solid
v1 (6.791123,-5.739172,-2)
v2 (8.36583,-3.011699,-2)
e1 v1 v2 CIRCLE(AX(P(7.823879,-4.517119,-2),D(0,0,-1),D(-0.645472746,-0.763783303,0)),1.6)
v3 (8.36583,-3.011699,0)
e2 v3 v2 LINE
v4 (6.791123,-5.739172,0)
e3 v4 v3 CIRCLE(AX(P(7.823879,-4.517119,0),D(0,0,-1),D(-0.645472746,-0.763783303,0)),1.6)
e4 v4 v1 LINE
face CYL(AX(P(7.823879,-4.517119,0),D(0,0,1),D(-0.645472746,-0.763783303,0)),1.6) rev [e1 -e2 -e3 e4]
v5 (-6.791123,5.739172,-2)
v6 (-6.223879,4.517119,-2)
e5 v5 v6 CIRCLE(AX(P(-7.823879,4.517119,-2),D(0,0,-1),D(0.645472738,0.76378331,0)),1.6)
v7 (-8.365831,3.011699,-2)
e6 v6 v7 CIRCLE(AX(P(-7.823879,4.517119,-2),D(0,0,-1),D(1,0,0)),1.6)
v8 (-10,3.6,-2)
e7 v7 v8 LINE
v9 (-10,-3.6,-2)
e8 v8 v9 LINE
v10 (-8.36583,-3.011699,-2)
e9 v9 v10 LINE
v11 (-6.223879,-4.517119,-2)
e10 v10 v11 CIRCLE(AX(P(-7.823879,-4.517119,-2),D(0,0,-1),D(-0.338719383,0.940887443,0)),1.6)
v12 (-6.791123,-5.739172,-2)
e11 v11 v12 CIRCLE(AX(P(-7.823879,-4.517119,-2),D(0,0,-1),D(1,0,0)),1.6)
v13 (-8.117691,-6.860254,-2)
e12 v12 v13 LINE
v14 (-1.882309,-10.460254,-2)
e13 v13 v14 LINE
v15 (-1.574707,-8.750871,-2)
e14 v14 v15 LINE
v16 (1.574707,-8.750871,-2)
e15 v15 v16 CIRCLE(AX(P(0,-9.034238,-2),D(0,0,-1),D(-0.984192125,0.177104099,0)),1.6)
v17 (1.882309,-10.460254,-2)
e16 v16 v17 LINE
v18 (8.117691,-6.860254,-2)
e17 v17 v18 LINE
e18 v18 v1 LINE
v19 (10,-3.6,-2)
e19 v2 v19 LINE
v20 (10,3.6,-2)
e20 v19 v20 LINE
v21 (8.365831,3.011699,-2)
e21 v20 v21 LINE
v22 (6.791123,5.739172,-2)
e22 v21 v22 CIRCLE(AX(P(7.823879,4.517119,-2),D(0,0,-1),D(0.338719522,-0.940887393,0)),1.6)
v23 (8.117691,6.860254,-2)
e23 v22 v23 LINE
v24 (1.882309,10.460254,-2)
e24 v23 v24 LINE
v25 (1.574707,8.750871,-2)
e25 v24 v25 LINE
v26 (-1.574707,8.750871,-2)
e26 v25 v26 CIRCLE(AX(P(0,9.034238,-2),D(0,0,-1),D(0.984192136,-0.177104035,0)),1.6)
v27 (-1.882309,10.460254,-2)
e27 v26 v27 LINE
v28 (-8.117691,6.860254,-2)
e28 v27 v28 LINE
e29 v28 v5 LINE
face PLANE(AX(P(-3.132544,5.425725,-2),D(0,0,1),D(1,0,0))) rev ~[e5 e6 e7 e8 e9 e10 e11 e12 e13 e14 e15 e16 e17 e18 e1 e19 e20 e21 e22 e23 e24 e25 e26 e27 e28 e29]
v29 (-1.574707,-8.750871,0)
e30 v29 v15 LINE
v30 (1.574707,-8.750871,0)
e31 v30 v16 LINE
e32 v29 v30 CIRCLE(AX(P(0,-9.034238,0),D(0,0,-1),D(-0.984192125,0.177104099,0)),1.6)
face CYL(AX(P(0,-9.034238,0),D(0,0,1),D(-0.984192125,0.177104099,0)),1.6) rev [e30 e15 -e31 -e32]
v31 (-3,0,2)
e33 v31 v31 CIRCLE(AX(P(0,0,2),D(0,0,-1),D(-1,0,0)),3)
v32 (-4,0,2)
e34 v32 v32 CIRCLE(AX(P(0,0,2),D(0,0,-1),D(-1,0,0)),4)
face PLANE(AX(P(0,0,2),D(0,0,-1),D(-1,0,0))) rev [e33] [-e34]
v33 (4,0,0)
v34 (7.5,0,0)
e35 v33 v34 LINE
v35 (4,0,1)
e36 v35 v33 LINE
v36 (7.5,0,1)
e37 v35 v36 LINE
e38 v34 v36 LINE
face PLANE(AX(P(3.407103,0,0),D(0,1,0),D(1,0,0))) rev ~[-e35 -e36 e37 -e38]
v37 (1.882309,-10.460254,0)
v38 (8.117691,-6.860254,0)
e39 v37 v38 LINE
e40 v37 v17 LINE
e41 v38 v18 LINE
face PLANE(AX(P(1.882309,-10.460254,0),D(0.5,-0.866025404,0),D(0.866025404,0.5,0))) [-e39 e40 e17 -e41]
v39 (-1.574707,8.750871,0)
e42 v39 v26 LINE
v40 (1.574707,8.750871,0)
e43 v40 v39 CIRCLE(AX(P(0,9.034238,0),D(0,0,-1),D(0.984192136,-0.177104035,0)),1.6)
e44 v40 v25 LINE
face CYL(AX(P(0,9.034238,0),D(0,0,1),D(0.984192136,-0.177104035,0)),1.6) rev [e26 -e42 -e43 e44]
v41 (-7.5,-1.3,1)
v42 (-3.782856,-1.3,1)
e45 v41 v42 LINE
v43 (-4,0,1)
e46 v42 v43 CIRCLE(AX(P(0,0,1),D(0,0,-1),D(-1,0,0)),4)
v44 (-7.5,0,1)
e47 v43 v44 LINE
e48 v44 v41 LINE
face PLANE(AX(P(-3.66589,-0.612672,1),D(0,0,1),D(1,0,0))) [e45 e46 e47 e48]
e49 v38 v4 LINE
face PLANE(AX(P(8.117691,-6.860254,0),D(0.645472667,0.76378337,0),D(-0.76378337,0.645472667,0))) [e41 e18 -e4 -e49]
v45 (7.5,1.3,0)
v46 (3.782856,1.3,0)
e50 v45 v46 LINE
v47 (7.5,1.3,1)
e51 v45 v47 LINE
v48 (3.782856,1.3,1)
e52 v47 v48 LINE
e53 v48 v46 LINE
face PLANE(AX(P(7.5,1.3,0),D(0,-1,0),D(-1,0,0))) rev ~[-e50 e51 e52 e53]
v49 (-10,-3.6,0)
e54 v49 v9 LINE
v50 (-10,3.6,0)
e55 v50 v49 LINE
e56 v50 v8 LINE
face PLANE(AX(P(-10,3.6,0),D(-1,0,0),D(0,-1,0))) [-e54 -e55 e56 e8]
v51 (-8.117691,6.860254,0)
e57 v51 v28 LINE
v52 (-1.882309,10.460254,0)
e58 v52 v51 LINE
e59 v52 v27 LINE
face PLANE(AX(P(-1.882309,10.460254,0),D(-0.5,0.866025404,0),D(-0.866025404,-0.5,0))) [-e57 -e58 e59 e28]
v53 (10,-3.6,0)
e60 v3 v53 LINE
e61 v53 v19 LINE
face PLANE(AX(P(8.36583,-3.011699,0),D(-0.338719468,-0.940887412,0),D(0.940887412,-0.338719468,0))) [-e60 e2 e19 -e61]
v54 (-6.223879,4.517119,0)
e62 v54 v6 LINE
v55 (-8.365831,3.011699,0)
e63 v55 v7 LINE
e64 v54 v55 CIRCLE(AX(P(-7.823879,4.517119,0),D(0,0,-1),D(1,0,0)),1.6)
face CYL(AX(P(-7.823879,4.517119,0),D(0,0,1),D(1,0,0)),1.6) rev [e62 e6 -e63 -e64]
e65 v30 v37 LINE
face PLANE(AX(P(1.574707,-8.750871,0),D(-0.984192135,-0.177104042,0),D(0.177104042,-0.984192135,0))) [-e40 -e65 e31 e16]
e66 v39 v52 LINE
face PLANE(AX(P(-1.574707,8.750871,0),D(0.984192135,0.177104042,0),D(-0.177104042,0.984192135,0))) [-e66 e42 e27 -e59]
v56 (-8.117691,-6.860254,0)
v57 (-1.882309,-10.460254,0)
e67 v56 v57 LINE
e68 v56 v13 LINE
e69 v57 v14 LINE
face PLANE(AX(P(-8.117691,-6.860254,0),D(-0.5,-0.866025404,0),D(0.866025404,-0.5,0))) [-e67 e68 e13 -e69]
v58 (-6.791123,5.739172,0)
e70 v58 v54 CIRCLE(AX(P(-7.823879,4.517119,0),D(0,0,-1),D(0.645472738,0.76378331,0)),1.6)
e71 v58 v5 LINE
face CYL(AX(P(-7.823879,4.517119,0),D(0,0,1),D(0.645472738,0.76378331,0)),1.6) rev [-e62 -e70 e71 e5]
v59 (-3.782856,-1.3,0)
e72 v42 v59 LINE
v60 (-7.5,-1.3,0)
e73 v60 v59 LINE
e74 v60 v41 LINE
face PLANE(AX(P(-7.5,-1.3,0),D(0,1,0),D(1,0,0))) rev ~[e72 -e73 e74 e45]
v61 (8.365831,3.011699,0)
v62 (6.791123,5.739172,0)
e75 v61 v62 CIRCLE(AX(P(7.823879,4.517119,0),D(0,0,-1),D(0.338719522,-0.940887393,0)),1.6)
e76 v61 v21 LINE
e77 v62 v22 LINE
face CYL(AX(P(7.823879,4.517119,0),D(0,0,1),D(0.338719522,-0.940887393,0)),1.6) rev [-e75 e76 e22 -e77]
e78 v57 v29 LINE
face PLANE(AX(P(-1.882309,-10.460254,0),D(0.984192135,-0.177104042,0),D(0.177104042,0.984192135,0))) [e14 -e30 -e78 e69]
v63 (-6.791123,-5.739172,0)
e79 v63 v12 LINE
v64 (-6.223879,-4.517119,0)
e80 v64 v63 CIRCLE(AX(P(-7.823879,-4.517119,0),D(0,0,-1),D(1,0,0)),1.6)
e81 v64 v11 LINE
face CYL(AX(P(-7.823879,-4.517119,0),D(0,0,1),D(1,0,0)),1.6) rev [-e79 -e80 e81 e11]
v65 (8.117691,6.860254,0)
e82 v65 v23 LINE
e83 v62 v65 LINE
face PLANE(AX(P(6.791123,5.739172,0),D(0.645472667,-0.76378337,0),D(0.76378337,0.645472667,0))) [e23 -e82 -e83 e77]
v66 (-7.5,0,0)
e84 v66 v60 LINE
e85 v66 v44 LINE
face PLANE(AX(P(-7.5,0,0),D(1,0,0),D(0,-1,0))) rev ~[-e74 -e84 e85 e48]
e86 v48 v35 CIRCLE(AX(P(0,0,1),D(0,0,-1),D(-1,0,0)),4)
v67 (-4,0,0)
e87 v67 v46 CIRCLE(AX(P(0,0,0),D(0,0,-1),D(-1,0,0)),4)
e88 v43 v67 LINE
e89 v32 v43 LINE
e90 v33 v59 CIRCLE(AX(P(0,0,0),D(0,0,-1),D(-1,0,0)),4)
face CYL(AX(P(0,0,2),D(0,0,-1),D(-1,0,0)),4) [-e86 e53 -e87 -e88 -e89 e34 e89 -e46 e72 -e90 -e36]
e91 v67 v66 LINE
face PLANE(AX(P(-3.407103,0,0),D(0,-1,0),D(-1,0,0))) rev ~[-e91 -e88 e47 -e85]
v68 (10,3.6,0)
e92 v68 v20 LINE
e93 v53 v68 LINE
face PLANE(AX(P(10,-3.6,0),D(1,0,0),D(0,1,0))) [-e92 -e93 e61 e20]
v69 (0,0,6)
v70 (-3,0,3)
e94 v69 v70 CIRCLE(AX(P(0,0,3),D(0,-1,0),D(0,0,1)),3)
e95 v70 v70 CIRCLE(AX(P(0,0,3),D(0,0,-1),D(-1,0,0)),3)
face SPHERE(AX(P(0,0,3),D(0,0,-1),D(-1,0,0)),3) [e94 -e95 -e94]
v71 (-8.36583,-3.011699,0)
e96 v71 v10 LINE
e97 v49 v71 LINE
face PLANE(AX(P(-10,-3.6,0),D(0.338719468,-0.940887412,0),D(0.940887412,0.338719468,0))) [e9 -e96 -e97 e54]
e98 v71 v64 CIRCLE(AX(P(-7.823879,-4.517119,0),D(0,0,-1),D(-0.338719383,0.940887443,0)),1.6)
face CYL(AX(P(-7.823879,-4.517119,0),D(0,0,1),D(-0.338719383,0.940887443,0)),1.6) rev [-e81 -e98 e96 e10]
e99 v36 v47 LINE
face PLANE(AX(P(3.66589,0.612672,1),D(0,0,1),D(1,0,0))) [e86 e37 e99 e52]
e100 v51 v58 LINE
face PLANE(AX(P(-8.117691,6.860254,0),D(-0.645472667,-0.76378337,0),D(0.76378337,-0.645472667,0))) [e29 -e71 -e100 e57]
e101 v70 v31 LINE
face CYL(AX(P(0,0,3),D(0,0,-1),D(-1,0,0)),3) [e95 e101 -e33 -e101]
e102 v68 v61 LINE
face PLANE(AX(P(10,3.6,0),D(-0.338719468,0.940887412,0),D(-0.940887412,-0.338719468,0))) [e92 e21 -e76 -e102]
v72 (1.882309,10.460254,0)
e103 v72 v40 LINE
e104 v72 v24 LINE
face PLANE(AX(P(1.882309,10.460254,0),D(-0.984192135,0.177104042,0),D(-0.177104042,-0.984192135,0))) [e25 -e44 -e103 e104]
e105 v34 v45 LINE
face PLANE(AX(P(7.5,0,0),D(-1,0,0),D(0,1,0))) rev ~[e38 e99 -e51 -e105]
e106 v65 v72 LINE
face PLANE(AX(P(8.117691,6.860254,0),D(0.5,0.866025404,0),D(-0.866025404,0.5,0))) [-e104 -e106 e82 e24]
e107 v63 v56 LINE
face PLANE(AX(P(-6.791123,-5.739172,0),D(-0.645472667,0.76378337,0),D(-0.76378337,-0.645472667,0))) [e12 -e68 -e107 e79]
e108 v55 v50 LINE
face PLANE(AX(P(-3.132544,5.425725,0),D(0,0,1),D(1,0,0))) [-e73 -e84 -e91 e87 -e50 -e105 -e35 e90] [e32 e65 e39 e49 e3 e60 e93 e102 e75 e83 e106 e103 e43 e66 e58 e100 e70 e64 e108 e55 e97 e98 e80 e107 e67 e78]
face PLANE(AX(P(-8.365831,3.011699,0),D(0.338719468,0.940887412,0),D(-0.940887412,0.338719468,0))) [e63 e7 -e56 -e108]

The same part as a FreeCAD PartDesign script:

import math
import FreeCAD as App
import Part
import Sketcher
from FreeCAD import Vector
Q = App.Units.Quantity


def add_polygon(sketch, points):
    """Adds a closed chain of lines whose ends are joined by coincident constraints."""
    first, n = sketch.GeometryCount, len(points)
    for a, b in zip(points, points[1:] + points[:1]):
        sketch.addGeometry(Part.LineSegment(App.Vector(*a, 0), App.Vector(*b, 0)), False)
    for i in range(n):
        sketch.addConstraint(Sketcher.Constraint("Coincident", first + i, 2, first + (i + 1) % n, 1))

doc = App.newDocument("Part")
params = doc.addObject("Spreadsheet::Sheet", "Params")
for row, (alias, value) in enumerate([
    ("sketch1_radius", "1.6 mm"),
    ("sketch1_height", "7.2 mm"),
    ("sketch1_length", "7.2 mm"),
    ("pad1_length", "2 mm"),
    ("sketch2_radius", "3 mm"),
    ("sketch2_width", "4 mm"),
    ("sketch2_height", "6 mm"),
    ("revolution_angle", "360 deg"),
    ("sketch3_height", "1.3 mm"),
    ("pad2_length", "1 mm"),
], start=1):
    params.set(f"A{row}", alias)
    params.set(f"B{row}", "=" + value)
    params.setAlias(f"B{row}", alias)

body = doc.addObject("PartDesign::Body", "Body")

# Sketch on XY plane
sketch1 = body.newObject("Sketcher::SketchObject", "Sketch")
sketch1.AttachmentSupport = (doc.getObject("XY_Plane"), [""])
sketch1.MapMode = "FlatFace"
sketch1.addGeometry(Part.LineSegment(Vector(-8.4, 3, 0), Vector(-10, 3.6, 0)), False)
sketch1.addGeometry(Part.LineSegment(Vector(-10, 3.6, 0), Vector(-10, -3.6, 0)), False)
sketch1.addGeometry(Part.LineSegment(Vector(-10, -3.6, 0), Vector(-8.4, -3, 0)), False)
sketch1.addGeometry(Part.ArcOfCircle(Part.Circle(Vector(-7.8, -4.5, 0), Vector(0, 0, 1), 1.6), math.radians(0), math.radians(110)), False)
sketch1.addGeometry(Part.ArcOfCircle(Part.Circle(Vector(-7.8, -4.5, 0), Vector(0, 0, 1), 1.6), math.radians(-50), math.radians(0)), False)
sketch1.addGeometry(Part.LineSegment(Vector(-6.8, -5.7, 0), Vector(-8.1, -6.9, 0)), False)
sketch1.addGeometry(Part.LineSegment(Vector(-8.1, -6.9, 0), Vector(-1.9, -10.5, 0)), False)
sketch1.addGeometry(Part.LineSegment(Vector(-1.9, -10.5, 0), Vector(-1.6, -8.8, 0)), False)
sketch1.addGeometry(Part.ArcOfCircle(Part.Circle(Vector(0, -9, 0), Vector(0, 0, 1), 1.6), math.radians(10), math.radians(170)), False)
sketch1.addGeometry(Part.LineSegment(Vector(1.6, -8.8, 0), Vector(1.9, -10.5, 0)), False)
sketch1.addGeometry(Part.LineSegment(Vector(1.9, -10.5, 0), Vector(8.1, -6.9, 0)), False)
sketch1.addGeometry(Part.LineSegment(Vector(8.1, -6.9, 0), Vector(6.8, -5.7, 0)), False)
sketch1.addGeometry(Part.ArcOfCircle(Part.Circle(Vector(7.8, -4.5, 0), Vector(0, 0, 1), 1.6), math.radians(70), math.radians(230)), False)
sketch1.addGeometry(Part.LineSegment(Vector(8.4, -3, 0), Vector(10, -3.6, 0)), False)
sketch1.addGeometry(Part.LineSegment(Vector(10, -3.6, 0), Vector(10, 3.6, 0)), False)
sketch1.addGeometry(Part.LineSegment(Vector(10, 3.6, 0), Vector(8.4, 3, 0)), False)
sketch1.addGeometry(Part.ArcOfCircle(Part.Circle(Vector(7.8, 4.5, 0), Vector(0, 0, 1), 1.6), math.radians(130), math.radians(290)), False)
sketch1.addGeometry(Part.LineSegment(Vector(6.8, 5.7, 0), Vector(8.1, 6.9, 0)), False)
sketch1.addGeometry(Part.LineSegment(Vector(8.1, 6.9, 0), Vector(1.9, 10.5, 0)), False)
sketch1.addGeometry(Part.LineSegment(Vector(1.9, 10.5, 0), Vector(1.6, 8.8, 0)), False)
sketch1.addGeometry(Part.ArcOfCircle(Part.Circle(Vector(0, 9, 0), Vector(0, 0, 1), 1.6), math.radians(-170), math.radians(-10)), False)
sketch1.addGeometry(Part.LineSegment(Vector(-1.6, 8.8, 0), Vector(-1.9, 10.5, 0)), False)
sketch1.addGeometry(Part.LineSegment(Vector(-1.9, 10.5, 0), Vector(-8.1, 6.9, 0)), False)
sketch1.addGeometry(Part.LineSegment(Vector(-8.1, 6.9, 0), Vector(-6.8, 5.7, 0)), False)
sketch1.addGeometry(Part.ArcOfCircle(Part.Circle(Vector(-7.8, 4.5, 0), Vector(0, 0, 1), 1.6), math.radians(0), math.radians(50)), False)
sketch1.addGeometry(Part.ArcOfCircle(Part.Circle(Vector(-7.8, 4.5, 0), Vector(0, 0, 1), 1.6), math.radians(-110), math.radians(0)), False)
sketch1.addConstraint(Sketcher.Constraint("Coincident", 0, 2, 1, 1))
sketch1.addConstraint(Sketcher.Constraint("Coincident", 1, 2, 2, 1))
sketch1.addConstraint(Sketcher.Constraint("Tangent", 2, 2, 3, 2))
sketch1.addConstraint(Sketcher.Constraint("Tangent", 3, 1, 4, 2))
sketch1.addConstraint(Sketcher.Constraint("Tangent", 4, 1, 5, 1))
sketch1.addConstraint(Sketcher.Constraint("Coincident", 5, 2, 6, 1))
sketch1.addConstraint(Sketcher.Constraint("Coincident", 6, 2, 7, 1))
sketch1.addConstraint(Sketcher.Constraint("Tangent", 7, 2, 8, 2))
sketch1.addConstraint(Sketcher.Constraint("Tangent", 8, 1, 9, 1))
sketch1.addConstraint(Sketcher.Constraint("Coincident", 9, 2, 10, 1))
sketch1.addConstraint(Sketcher.Constraint("Coincident", 10, 2, 11, 1))
sketch1.addConstraint(Sketcher.Constraint("Tangent", 11, 2, 12, 2))
sketch1.addConstraint(Sketcher.Constraint("Tangent", 12, 1, 13, 1))
sketch1.addConstraint(Sketcher.Constraint("Coincident", 13, 2, 14, 1))
sketch1.addConstraint(Sketcher.Constraint("Coincident", 14, 2, 15, 1))
sketch1.addConstraint(Sketcher.Constraint("Tangent", 15, 2, 16, 2))
sketch1.addConstraint(Sketcher.Constraint("Tangent", 16, 1, 17, 1))
sketch1.addConstraint(Sketcher.Constraint("Coincident", 17, 2, 18, 1))
sketch1.addConstraint(Sketcher.Constraint("Coincident", 18, 2, 19, 1))
sketch1.addConstraint(Sketcher.Constraint("Tangent", 19, 2, 20, 2))
sketch1.addConstraint(Sketcher.Constraint("Tangent", 20, 1, 21, 1))
sketch1.addConstraint(Sketcher.Constraint("Coincident", 21, 2, 22, 1))
sketch1.addConstraint(Sketcher.Constraint("Coincident", 22, 2, 23, 1))
sketch1.addConstraint(Sketcher.Constraint("Tangent", 23, 2, 24, 2))
sketch1.addConstraint(Sketcher.Constraint("Tangent", 24, 1, 25, 2))
sketch1.addConstraint(Sketcher.Constraint("Tangent", 25, 1, 0, 1))
sketch1.addConstraint(Sketcher.Constraint("Vertical", 1))
sketch1.addConstraint(Sketcher.Constraint("Vertical", 14))
sketch1.addConstraint(Sketcher.Constraint("Equal", 3, 4))
sketch1.addConstraint(Sketcher.Constraint("Equal", 4, 8))
sketch1.addConstraint(Sketcher.Constraint("Equal", 8, 12))
sketch1.addConstraint(Sketcher.Constraint("Equal", 12, 16))
sketch1.addConstraint(Sketcher.Constraint("Equal", 16, 20))
sketch1.addConstraint(Sketcher.Constraint("Equal", 20, 24))
sketch1.addConstraint(Sketcher.Constraint("Equal", 24, 25))
sketch1.addConstraint(Sketcher.Constraint("Symmetric", 3, 3, 16, 3, -1, 1))
sketch1.addConstraint(Sketcher.Constraint("Symmetric", 8, 3, 20, 3, -1, 1))
sketch1.addConstraint(Sketcher.Constraint("Symmetric", 12, 3, 24, 3, -1, 1))
sketch1.addConstraint(Sketcher.Constraint("Symmetric", 0, 2, 13, 2, -1, 1))
sketch1.addConstraint(Sketcher.Constraint("Symmetric", 5, 2, 17, 2, -1, 1))
sketch1.addConstraint(Sketcher.Constraint("Symmetric", 6, 2, 18, 2, -1, 1))
sketch1.addConstraint(Sketcher.Constraint("Symmetric", 9, 2, 21, 2, -1, 1))
sketch1.addConstraint(Sketcher.Constraint("Symmetric", 10, 2, 22, 2, -1, 1))
sketch1.addConstraint(Sketcher.Constraint("Symmetric", 3, 3, 12, 3, -2))
sketch1.addConstraint(Sketcher.Constraint("Symmetric", 7, 2, 8, 1, -2))
sketch1.addConstraint(Sketcher.Constraint("Symmetric", 5, 2, 10, 2, -2))
sketch1.addConstraint(Sketcher.Constraint("Parallel", 2, 15))
sketch1.addConstraint(Sketcher.Constraint("Horizontal", 12, 3, 3, 1))
sketch1.addConstraint(Sketcher.Constraint("Horizontal", 6, 2, 9, 2))
sketch1.addConstraint(Sketcher.Constraint("Horizontal", 2, 2, 12, 1))
sketch1.addConstraint(Sketcher.Constraint("Horizontal", 25, 3, 24, 1))
sketch1.addConstraint(Sketcher.Constraint("Equal", 2, 5))
sketch1.addConstraint(Sketcher.Constraint("Equal", 5, 7))
sketch1.addConstraint(Sketcher.Constraint("Radius", 3, Q("1.6 mm")))
sketch1.addConstraint(Sketcher.Constraint("Angle", 6, Q("-30 deg")))
sketch1.addConstraint(Sketcher.Constraint("DistanceY", 1, 2, 1, 1, Q("7.2 mm")))
sketch1.addConstraint(Sketcher.Constraint("DistanceX", 0, 2, -1, 1, Q("10 mm")))
sketch1.addConstraint(Sketcher.Constraint("Distance", 6, Q("7.2 mm")))
sketch1.addConstraint(Sketcher.Constraint("DistanceY", 2, 2, -1, 1, Q("3.011699 mm")))
sketch1.addConstraint(Sketcher.Constraint("DistanceX", 6, 2, 7, 2, Q("0.307601 mm")))
sketch1.addConstraint(Sketcher.Constraint("DistanceY", 7, 2, 4, 1, Q("3.011699 mm")))
sketch1.setExpression("Constraints[53]", "Params.sketch1_radius")
sketch1.setExpression("Constraints[55]", "Params.sketch1_height")
sketch1.setExpression("Constraints[57]", "Params.sketch1_length")
pad1 = body.newObject("PartDesign::Pad", "Pad")
pad1.Profile = sketch1
pad1.setExpression("Length", "Params.pad1_length")
pad1.Reversed = True

# Sketch on XZ plane
sketch2 = body.newObject("Sketcher::SketchObject", "Sketch001")
sketch2.AttachmentSupport = (doc.getObject("XZ_Plane"), [""])
sketch2.MapMode = "FlatFace"
sketch2.addGeometry(Part.LineSegment(Vector(-4, 0, 0), Vector(0, 0, 0)), False)
sketch2.addGeometry(Part.LineSegment(Vector(0, 0, 0), Vector(0, 6, 0)), False)
sketch2.addGeometry(Part.ArcOfCircle(Part.Circle(Vector(0, 3, 0), Vector(0, 0, 1), 3), math.radians(90), math.radians(180)), False)
sketch2.addGeometry(Part.LineSegment(Vector(-3, 3, 0), Vector(-3, 2, 0)), False)
sketch2.addGeometry(Part.LineSegment(Vector(-3, 2, 0), Vector(-4, 2, 0)), False)
sketch2.addGeometry(Part.LineSegment(Vector(-4, 2, 0), Vector(-4, 0, 0)), False)
sketch2.addConstraint(Sketcher.Constraint("Coincident", 0, 2, 1, 1))
sketch2.addConstraint(Sketcher.Constraint("Coincident", 1, 2, 2, 1))
sketch2.addConstraint(Sketcher.Constraint("Tangent", 2, 2, 3, 1))
sketch2.addConstraint(Sketcher.Constraint("Coincident", 3, 2, 4, 1))
sketch2.addConstraint(Sketcher.Constraint("Coincident", 4, 2, 5, 1))
sketch2.addConstraint(Sketcher.Constraint("Coincident", 5, 2, 0, 1))
sketch2.addConstraint(Sketcher.Constraint("Horizontal", 0))
sketch2.addConstraint(Sketcher.Constraint("Vertical", 1))
sketch2.addConstraint(Sketcher.Constraint("Vertical", 3))
sketch2.addConstraint(Sketcher.Constraint("Horizontal", 4))
sketch2.addConstraint(Sketcher.Constraint("Vertical", 5))
sketch2.addConstraint(Sketcher.Constraint("Coincident", 0, 2, -1, 1))
sketch2.addConstraint(Sketcher.Constraint("PointOnObject", 2, 3, -2))
sketch2.addConstraint(Sketcher.Constraint("Equal", 4, 3))
sketch2.addConstraint(Sketcher.Constraint("Radius", 2, Q("3 mm")))
sketch2.addConstraint(Sketcher.Constraint("DistanceX", 0, 1, 0, 2, Q("4 mm")))
sketch2.addConstraint(Sketcher.Constraint("DistanceY", 1, 1, 1, 2, Q("6 mm")))
sketch2.setExpression("Constraints[14]", "Params.sketch2_radius")
sketch2.setExpression("Constraints[15]", "Params.sketch2_width")
sketch2.setExpression("Constraints[16]", "Params.sketch2_height")
revolution = body.newObject("PartDesign::Revolution", "Revolution")
revolution.Profile = sketch2
revolution.ReferenceAxis = (sketch2, ["V_Axis"])
revolution.setExpression("Angle", "Params.revolution_angle")

# Sketch on XY plane
sketch3 = body.newObject("Sketcher::SketchObject", "Sketch002")
sketch3.AttachmentSupport = (doc.getObject("XY_Plane"), [""])
sketch3.MapMode = "FlatFace"
add_polygon(sketch3, [(-3.4, -1.3), (-3.4, 0), (-7.5, 0), (-7.5, -1.3)])  # lines 0-3
add_polygon(sketch3, [(3.4, 1.3), (3.4, 0), (7.5, 0), (7.5, 1.3)])  # lines 4-7
sketch3.addConstraint(Sketcher.Constraint("Vertical", 0))
sketch3.addConstraint(Sketcher.Constraint("Horizontal", 1))
sketch3.addConstraint(Sketcher.Constraint("Vertical", 2))
sketch3.addConstraint(Sketcher.Constraint("Horizontal", 3))
sketch3.addConstraint(Sketcher.Constraint("Vertical", 4))
sketch3.addConstraint(Sketcher.Constraint("Horizontal", 5))
sketch3.addConstraint(Sketcher.Constraint("Vertical", 6))
sketch3.addConstraint(Sketcher.Constraint("Horizontal", 7))
sketch3.addConstraint(Sketcher.Constraint("Symmetric", 0, 2, 4, 2, -1, 1))
sketch3.addConstraint(Sketcher.Constraint("Symmetric", 2, 2, 6, 2, -1, 1))
sketch3.addConstraint(Sketcher.Constraint("PointOnObject", 0, 2, -1))
sketch3.addConstraint(Sketcher.Constraint("DistanceY", 0, 1, 0, 2, Q("1.3 mm")))
sketch3.addConstraint(Sketcher.Constraint("DistanceX", 1, 2, 5, 2, Q("15 mm")))
sketch3.addConstraint(Sketcher.Constraint("DistanceX", 1, 2, 1, 1, Q("4.092897 mm")))
sketch3.setExpression("Constraints[19]", "Params.sketch3_height")
pad2 = body.newObject("PartDesign::Pad", "Pad001")
pad2.Profile = sketch3
pad2.setExpression("Length", "Params.pad2_length")

doc.recompute()
